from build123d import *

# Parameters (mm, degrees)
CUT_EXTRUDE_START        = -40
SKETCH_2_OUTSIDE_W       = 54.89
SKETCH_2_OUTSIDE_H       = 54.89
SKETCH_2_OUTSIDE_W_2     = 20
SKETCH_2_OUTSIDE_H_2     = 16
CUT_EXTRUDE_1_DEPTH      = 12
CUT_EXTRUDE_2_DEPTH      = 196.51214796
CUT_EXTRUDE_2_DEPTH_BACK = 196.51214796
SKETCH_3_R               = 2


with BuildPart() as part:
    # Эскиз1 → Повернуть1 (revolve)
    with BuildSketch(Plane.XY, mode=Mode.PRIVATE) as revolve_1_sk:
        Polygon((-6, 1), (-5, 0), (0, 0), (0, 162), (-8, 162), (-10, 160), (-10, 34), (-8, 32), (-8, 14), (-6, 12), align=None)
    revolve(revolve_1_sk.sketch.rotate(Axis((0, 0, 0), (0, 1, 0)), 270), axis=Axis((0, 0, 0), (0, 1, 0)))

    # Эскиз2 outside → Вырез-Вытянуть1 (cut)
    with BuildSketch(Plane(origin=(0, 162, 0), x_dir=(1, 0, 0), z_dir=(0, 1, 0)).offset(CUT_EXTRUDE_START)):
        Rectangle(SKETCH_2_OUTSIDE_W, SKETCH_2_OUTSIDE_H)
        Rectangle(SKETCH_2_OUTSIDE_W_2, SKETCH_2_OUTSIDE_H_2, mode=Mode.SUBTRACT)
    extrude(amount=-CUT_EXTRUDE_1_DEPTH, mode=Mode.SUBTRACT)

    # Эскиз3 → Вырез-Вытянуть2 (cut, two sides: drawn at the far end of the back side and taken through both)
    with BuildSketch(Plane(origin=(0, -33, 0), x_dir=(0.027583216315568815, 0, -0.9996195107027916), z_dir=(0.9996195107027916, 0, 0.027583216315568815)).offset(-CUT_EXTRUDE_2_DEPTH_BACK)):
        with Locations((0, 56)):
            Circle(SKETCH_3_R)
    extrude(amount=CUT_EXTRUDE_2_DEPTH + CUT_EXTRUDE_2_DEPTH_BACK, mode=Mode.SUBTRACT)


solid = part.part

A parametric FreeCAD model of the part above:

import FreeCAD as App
import Part
import Sketcher
from FreeCAD import Vector
Q = App.Units.Quantity

doc = App.newDocument("Part")
body = doc.addObject("PartDesign::Body", "Body")

sketch1 = body.newObject("Sketcher::SketchObject", "Sketch")
sketch1.AttachmentSupport = (doc.getObject("XY_Plane"), [""])
sketch1.MapMode = "FlatFace"
sketch1.addGeometry([
    Part.LineSegment(Vector(-6, 1, 0), Vector(-5, 0, 0)),
    Part.LineSegment(Vector(-5, 0, 0), Vector(0, 0, 0)),
    Part.LineSegment(Vector(0, 0, 0), Vector(0, 162, 0)),
    Part.LineSegment(Vector(0, 162, 0), Vector(-8, 162, 0)),
    Part.LineSegment(Vector(-8, 162, 0), Vector(-10, 160, 0)),
    Part.LineSegment(Vector(-10, 160, 0), Vector(-10, 34, 0)),
    Part.LineSegment(Vector(-10, 34, 0), Vector(-8, 32, 0)),
    Part.LineSegment(Vector(-8, 32, 0), Vector(-8, 14, 0)),
    Part.LineSegment(Vector(-8, 14, 0), Vector(-6, 12, 0)),
    Part.LineSegment(Vector(-6, 12, 0), Vector(-6, 1, 0)),
], False)
sketch1.addConstraint([
    Sketcher.Constraint("Coincident", 0, 2, 1, 1),
    Sketcher.Constraint("Coincident", 1, 2, 2, 1),
    Sketcher.Constraint("Coincident", 2, 2, 3, 1),
    Sketcher.Constraint("Coincident", 3, 2, 4, 1),
    Sketcher.Constraint("Coincident", 4, 2, 5, 1),
    Sketcher.Constraint("Coincident", 5, 2, 6, 1),
    Sketcher.Constraint("Coincident", 6, 2, 7, 1),
    Sketcher.Constraint("Coincident", 7, 2, 8, 1),
    Sketcher.Constraint("Coincident", 8, 2, 9, 1),
    Sketcher.Constraint("Coincident", 9, 2, 0, 1),
    Sketcher.Constraint("Horizontal", 1),
    Sketcher.Constraint("Vertical", 2),
    Sketcher.Constraint("Horizontal", 3),
    Sketcher.Constraint("Vertical", 5),
    Sketcher.Constraint("Vertical", 7),
    Sketcher.Constraint("Vertical", 9),
    Sketcher.Constraint("Coincident", 1, 2, -1, 1),
    Sketcher.Constraint("Perpendicular", 0, 4),
    Sketcher.Constraint("Perpendicular", 4, 6),
    Sketcher.Constraint("Parallel", 6, 8),
    Sketcher.Constraint("Vertical", 3, 2, 6, 2),
    Sketcher.Constraint("Equal", 4, 6),
    Sketcher.Constraint("Equal", 6, 8),
    Sketcher.Constraint("DistanceX", 1, 1, 1, 2, Q("5 mm")),
    Sketcher.Constraint("DistanceX", 3, 2, 3, 1, Q("8 mm")),
    Sketcher.Constraint("DistanceY", 2, 1, 2, 2, Q("162 mm")),
    Sketcher.Constraint("DistanceY", 5, 2, 5, 1, Q("126 mm")),
    Sketcher.Constraint("DistanceY", 7, 2, 7, 1, Q("18 mm")),
    Sketcher.Constraint("DistanceY", 9, 2, 9, 1, Q("11 mm")),
])
revolution = body.newObject("PartDesign::Revolution", "Revolution")
revolution.Profile = sketch1
revolution.ReferenceAxis = (sketch1, ["V_Axis"])
revolution.Angle = 360

sketch2 = body.newObject("Sketcher::SketchObject", "Sketch001")
sketch2.AttachmentSupport = (doc.getObject("XZ_Plane"), [""])
sketch2.MapMode = "FlatFace"
sketch2.AttachmentOffset = App.Placement(Vector(0, 0, -122), App.Rotation())
sketch2.addGeometry([
    Part.LineSegment(Vector(-27, -27, 0), Vector(-27, 27, 0)),
    Part.LineSegment(Vector(-27, 27, 0), Vector(27, 27, 0)),
    Part.LineSegment(Vector(27, 27, 0), Vector(27, -27, 0)),
    Part.LineSegment(Vector(27, -27, 0), Vector(-27, -27, 0)),
    Part.LineSegment(Vector(10, 8, 0), Vector(-10, 8, 0)),
    Part.LineSegment(Vector(-10, 8, 0), Vector(-10, -8, 0)),
    Part.LineSegment(Vector(-10, -8, 0), Vector(10, -8, 0)),
    Part.LineSegment(Vector(10, -8, 0), Vector(10, 8, 0)),
], False)
sketch2.addConstraint([
    Sketcher.Constraint("Coincident", 0, 2, 1, 1),
    Sketcher.Constraint("Coincident", 1, 2, 2, 1),
    Sketcher.Constraint("Coincident", 2, 2, 3, 1),
    Sketcher.Constraint("Coincident", 3, 2, 0, 1),
    Sketcher.Constraint("Coincident", 4, 2, 5, 1),
    Sketcher.Constraint("Coincident", 5, 2, 6, 1),
    Sketcher.Constraint("Coincident", 6, 2, 7, 1),
    Sketcher.Constraint("Coincident", 7, 2, 4, 1),
    Sketcher.Constraint("Vertical", 0),
    Sketcher.Constraint("Horizontal", 1),
    Sketcher.Constraint("Vertical", 2),
    Sketcher.Constraint("Horizontal", 3),
    Sketcher.Constraint("Horizontal", 4),
    Sketcher.Constraint("Vertical", 5),
    Sketcher.Constraint("Horizontal", 6),
    Sketcher.Constraint("Vertical", 7),
    Sketcher.Constraint("Symmetric", 0, 2, 2, 2, -1, 1),
    Sketcher.Constraint("Symmetric", 4, 2, 6, 2, -1, 1),
    Sketcher.Constraint("Equal", 3, 0),
    Sketcher.Constraint("DistanceX", 4, 2, 4, 1, Q("20 mm")),
    Sketcher.Constraint("DistanceY", 5, 2, 5, 1, Q("16 mm")),
    Sketcher.Constraint("DistanceX", 1, 1, 1, 2, Q("54.89 mm")),
])
pocket1 = body.newObject("PartDesign::Pocket", "Pocket")
pocket1.Profile = sketch2
pocket1.Length = 12
pocket1.Reversed = True

sketch3 = body.newObject("Sketcher::SketchObject", "Sketch002")
sketch3.Placement = App.Placement(Vector(0, -33, 0), App.Rotation(Vector(0.027583216, 0, -0.999619511), Vector(0, 1.000000001, 0), Vector(0.999619511, 0, 0.027583216), "ZXY"))
sketch3.addGeometry(Part.Circle(Vector(0, 56, 0), Vector(0, 0, 1), 2), False)
sketch3.addConstraint([
    Sketcher.Constraint("PointOnObject", 0, 3, -2),
    Sketcher.Constraint("Diameter", 0, Q("4 mm")),
    Sketcher.Constraint("DistanceY", -1, 1, 0, 3, Q("56 mm")),
])
pocket2 = body.newObject("PartDesign::Pocket", "Pocket001")
pocket2.Profile = sketch3
pocket2.Type = "ThroughAll"
pocket2.Midplane = True

doc.recompute()
